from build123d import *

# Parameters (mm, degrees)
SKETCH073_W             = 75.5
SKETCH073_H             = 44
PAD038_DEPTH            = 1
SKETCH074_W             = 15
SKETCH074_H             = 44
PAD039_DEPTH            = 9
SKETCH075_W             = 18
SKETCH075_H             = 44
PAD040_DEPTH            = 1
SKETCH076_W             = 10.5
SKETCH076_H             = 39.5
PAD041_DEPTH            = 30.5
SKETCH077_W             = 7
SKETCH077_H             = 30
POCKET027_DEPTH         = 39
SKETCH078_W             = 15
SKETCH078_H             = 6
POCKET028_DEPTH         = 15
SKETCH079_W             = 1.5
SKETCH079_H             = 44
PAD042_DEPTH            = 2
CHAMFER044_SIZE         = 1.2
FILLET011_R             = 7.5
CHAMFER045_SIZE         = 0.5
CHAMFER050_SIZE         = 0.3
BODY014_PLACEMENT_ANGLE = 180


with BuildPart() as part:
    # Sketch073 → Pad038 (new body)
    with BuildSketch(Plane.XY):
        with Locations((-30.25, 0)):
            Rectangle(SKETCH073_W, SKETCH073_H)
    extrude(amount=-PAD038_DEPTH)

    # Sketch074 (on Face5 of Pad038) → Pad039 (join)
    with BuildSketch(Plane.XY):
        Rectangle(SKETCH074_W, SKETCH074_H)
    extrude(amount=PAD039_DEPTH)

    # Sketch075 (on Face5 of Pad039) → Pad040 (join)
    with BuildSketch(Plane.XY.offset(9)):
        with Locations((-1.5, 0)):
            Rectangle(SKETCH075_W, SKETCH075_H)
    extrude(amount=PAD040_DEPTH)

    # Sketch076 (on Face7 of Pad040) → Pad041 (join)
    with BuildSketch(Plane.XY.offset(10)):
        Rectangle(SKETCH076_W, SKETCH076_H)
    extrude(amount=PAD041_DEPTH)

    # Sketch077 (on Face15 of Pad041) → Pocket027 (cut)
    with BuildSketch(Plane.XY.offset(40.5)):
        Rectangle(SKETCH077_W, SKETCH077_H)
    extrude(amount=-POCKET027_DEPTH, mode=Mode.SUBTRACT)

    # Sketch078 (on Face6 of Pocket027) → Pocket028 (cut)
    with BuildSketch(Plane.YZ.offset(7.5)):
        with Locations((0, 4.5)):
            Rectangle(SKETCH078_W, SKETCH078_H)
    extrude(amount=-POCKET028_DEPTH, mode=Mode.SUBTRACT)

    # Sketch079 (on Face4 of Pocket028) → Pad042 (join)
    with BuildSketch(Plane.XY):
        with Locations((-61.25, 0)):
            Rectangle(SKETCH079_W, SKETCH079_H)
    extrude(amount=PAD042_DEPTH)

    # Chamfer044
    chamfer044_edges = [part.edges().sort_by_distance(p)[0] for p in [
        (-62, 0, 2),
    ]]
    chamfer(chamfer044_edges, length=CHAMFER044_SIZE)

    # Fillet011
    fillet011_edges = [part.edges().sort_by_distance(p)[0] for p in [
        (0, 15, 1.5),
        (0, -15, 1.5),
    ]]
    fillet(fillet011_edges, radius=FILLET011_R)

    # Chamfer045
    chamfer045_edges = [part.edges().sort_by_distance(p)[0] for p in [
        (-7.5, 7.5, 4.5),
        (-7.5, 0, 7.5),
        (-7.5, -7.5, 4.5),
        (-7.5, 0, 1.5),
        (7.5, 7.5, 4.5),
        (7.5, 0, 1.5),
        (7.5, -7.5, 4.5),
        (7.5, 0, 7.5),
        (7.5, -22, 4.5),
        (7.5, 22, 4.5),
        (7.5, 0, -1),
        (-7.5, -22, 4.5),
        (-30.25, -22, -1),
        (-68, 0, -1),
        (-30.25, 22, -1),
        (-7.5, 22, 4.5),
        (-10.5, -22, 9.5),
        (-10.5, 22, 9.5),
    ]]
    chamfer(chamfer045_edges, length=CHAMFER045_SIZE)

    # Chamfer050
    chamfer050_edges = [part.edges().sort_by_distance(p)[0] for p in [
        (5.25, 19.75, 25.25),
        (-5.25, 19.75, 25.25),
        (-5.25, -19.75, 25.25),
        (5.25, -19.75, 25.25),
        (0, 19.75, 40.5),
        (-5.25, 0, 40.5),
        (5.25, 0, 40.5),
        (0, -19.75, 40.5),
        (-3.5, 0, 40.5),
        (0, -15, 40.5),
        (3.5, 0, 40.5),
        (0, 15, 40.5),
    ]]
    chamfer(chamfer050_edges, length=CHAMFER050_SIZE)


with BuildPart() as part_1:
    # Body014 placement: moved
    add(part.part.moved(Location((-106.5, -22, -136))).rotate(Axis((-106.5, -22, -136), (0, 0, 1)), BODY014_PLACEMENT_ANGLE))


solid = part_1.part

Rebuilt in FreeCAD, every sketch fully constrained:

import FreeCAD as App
import Part
import Sketcher
from FreeCAD import Vector
Q = App.Units.Quantity


def edges_at(feature, points):
    """Names of the edges that pass closest to the given points."""
    edges = feature.Shape.Edges
    near = lambda p: min(range(len(edges)), key=lambda i: edges[i].distToShape(Part.Vertex(*p))[0])
    return sorted({f"Edge{near(p) + 1}" for p in points})

doc = App.newDocument("Part")
body = doc.addObject("PartDesign::Body", "Body")

sketch1 = doc.addObject("Sketcher::SketchObject", "Sketch")
body.addObject(sketch1)
sketch1.AttachmentSupport = (doc.XY_Plane, [""])
sketch1.MapMode = "FlatFace"
sketch1.addGeometry(Part.LineSegment(Vector(-68, 22, 0), Vector(-68, -22, 0)), False)
sketch1.addGeometry(Part.LineSegment(Vector(-68, -22, 0), Vector(7.5, -22, 0)), False)
sketch1.addGeometry(Part.LineSegment(Vector(7.5, -22, 0), Vector(7.5, 22, 0)), False)
sketch1.addGeometry(Part.LineSegment(Vector(7.5, 22, 0), Vector(-68, 22, 0)), False)
sketch1.addConstraint(Sketcher.Constraint("Coincident", 0, 2, 1, 1))
sketch1.addConstraint(Sketcher.Constraint("Coincident", 1, 2, 2, 1))
sketch1.addConstraint(Sketcher.Constraint("Coincident", 2, 2, 3, 1))
sketch1.addConstraint(Sketcher.Constraint("Coincident", 3, 2, 0, 1))
sketch1.addConstraint(Sketcher.Constraint("Vertical", 0))
sketch1.addConstraint(Sketcher.Constraint("Horizontal", 1))
sketch1.addConstraint(Sketcher.Constraint("Vertical", 2))
sketch1.addConstraint(Sketcher.Constraint("Horizontal", 3))
sketch1.addConstraint(Sketcher.Constraint("DistanceY", 0, 2, 0, 1, Q("44 mm")))
sketch1.addConstraint(Sketcher.Constraint("DistanceX", 1, 1, 1, 2, Q("75.5 mm")))
sketch1.addConstraint(Sketcher.Constraint("DistanceX", 0, 2, -1, 1, Q("68 mm")))
sketch1.addConstraint(Sketcher.Constraint("DistanceY", 0, 2, -1, 1, Q("22 mm")))
pad1 = doc.addObject("PartDesign::Pad", "Pad")
body.addObject(pad1)
pad1.Profile = sketch1
pad1.Length = 1
pad1.Reversed = True

sketch2 = doc.addObject("Sketcher::SketchObject", "Sketch001")
body.addObject(sketch2)
sketch2.AttachmentSupport = (doc.XY_Plane, [""])
sketch2.MapMode = "FlatFace"
sketch2.addGeometry(Part.LineSegment(Vector(-7.5, 22, 0), Vector(-7.5, -22, 0)), False)
sketch2.addGeometry(Part.LineSegment(Vector(-7.5, -22, 0), Vector(7.5, -22, 0)), False)
sketch2.addGeometry(Part.LineSegment(Vector(7.5, -22, 0), Vector(7.5, 22, 0)), False)
sketch2.addGeometry(Part.LineSegment(Vector(7.5, 22, 0), Vector(-7.5, 22, 0)), False)
sketch2.addConstraint(Sketcher.Constraint("Coincident", 0, 2, 1, 1))
sketch2.addConstraint(Sketcher.Constraint("Coincident", 1, 2, 2, 1))
sketch2.addConstraint(Sketcher.Constraint("Coincident", 2, 2, 3, 1))
sketch2.addConstraint(Sketcher.Constraint("Coincident", 3, 2, 0, 1))
sketch2.addConstraint(Sketcher.Constraint("Vertical", 0))
sketch2.addConstraint(Sketcher.Constraint("Horizontal", 1))
sketch2.addConstraint(Sketcher.Constraint("Vertical", 2))
sketch2.addConstraint(Sketcher.Constraint("Horizontal", 3))
sketch2.addConstraint(Sketcher.Constraint("Symmetric", 0, 2, 2, 2, -1, 1))
sketch2.addConstraint(Sketcher.Constraint("DistanceX", 1, 1, 1, 2, Q("15 mm")))
sketch2.addConstraint(Sketcher.Constraint("DistanceY", 0, 2, 0, 1, Q("44 mm")))
pad2 = doc.addObject("PartDesign::Pad", "Pad001")
body.addObject(pad2)
pad2.Profile = sketch2
pad2.Length = 9

sketch3 = doc.addObject("Sketcher::SketchObject", "Sketch002")
body.addObject(sketch3)
sketch3.AttachmentSupport = (doc.XY_Plane, [""])
sketch3.MapMode = "FlatFace"
sketch3.AttachmentOffset = App.Placement(Vector(0, 0, 9), App.Rotation())
sketch3.addGeometry(Part.LineSegment(Vector(-10.5, 22, 0), Vector(-10.5, -22, 0)), False)
sketch3.addGeometry(Part.LineSegment(Vector(-10.5, -22, 0), Vector(7.5, -22, 0)), False)
sketch3.addGeometry(Part.LineSegment(Vector(7.5, -22, 0), Vector(7.5, 22, 0)), False)
sketch3.addGeometry(Part.LineSegment(Vector(7.5, 22, 0), Vector(-10.5, 22, 0)), False)
sketch3.addConstraint(Sketcher.Constraint("Coincident", 0, 2, 1, 1))
sketch3.addConstraint(Sketcher.Constraint("Coincident", 1, 2, 2, 1))
sketch3.addConstraint(Sketcher.Constraint("Coincident", 2, 2, 3, 1))
sketch3.addConstraint(Sketcher.Constraint("Coincident", 3, 2, 0, 1))
sketch3.addConstraint(Sketcher.Constraint("Vertical", 0))
sketch3.addConstraint(Sketcher.Constraint("Horizontal", 1))
sketch3.addConstraint(Sketcher.Constraint("Vertical", 2))
sketch3.addConstraint(Sketcher.Constraint("Horizontal", 3))
sketch3.addConstraint(Sketcher.Constraint("DistanceX", 1, 1, 1, 2, Q("18 mm")))
sketch3.addConstraint(Sketcher.Constraint("DistanceY", 0, 2, 0, 1, Q("44 mm")))
sketch3.addConstraint(Sketcher.Constraint("DistanceY", 0, 2, -1, 1, Q("22 mm")))
sketch3.addConstraint(Sketcher.Constraint("DistanceX", 0, 2, -1, 1, Q("10.5 mm")))
pad3 = doc.addObject("PartDesign::Pad", "Pad002")
body.addObject(pad3)
pad3.Profile = sketch3
pad3.Length = 1

sketch4 = doc.addObject("Sketcher::SketchObject", "Sketch003")
body.addObject(sketch4)
sketch4.AttachmentSupport = (doc.XY_Plane, [""])
sketch4.MapMode = "FlatFace"
sketch4.AttachmentOffset = App.Placement(Vector(0, 0, 10), App.Rotation())
sketch4.addGeometry(Part.LineSegment(Vector(-5.25, 19.75, 0), Vector(-5.25, -19.75, 0)), False)
sketch4.addGeometry(Part.LineSegment(Vector(-5.25, -19.75, 0), Vector(5.25, -19.75, 0)), False)
sketch4.addGeometry(Part.LineSegment(Vector(5.25, -19.75, 0), Vector(5.25, 19.75, 0)), False)
sketch4.addGeometry(Part.LineSegment(Vector(5.25, 19.75, 0), Vector(-5.25, 19.75, 0)), False)
sketch4.addConstraint(Sketcher.Constraint("Coincident", 0, 2, 1, 1))
sketch4.addConstraint(Sketcher.Constraint("Coincident", 1, 2, 2, 1))
sketch4.addConstraint(Sketcher.Constraint("Coincident", 2, 2, 3, 1))
sketch4.addConstraint(Sketcher.Constraint("Coincident", 3, 2, 0, 1))
sketch4.addConstraint(Sketcher.Constraint("Vertical", 0))
sketch4.addConstraint(Sketcher.Constraint("Horizontal", 1))
sketch4.addConstraint(Sketcher.Constraint("Vertical", 2))
sketch4.addConstraint(Sketcher.Constraint("Horizontal", 3))
sketch4.addConstraint(Sketcher.Constraint("Symmetric", 0, 2, 2, 2, -1, 1))
sketch4.addConstraint(Sketcher.Constraint("DistanceX", 1, 1, 1, 2, Q("10.5 mm")))
sketch4.addConstraint(Sketcher.Constraint("DistanceY", 0, 2, 0, 1, Q("39.5 mm")))
pad4 = doc.addObject("PartDesign::Pad", "Pad003")
body.addObject(pad4)
pad4.Profile = sketch4
pad4.Length = 30.5

sketch5 = doc.addObject("Sketcher::SketchObject", "Sketch004")
body.addObject(sketch5)
sketch5.AttachmentSupport = (doc.XY_Plane, [""])
sketch5.MapMode = "FlatFace"
sketch5.AttachmentOffset = App.Placement(Vector(0, 0, 40.5), App.Rotation())
sketch5.addGeometry(Part.LineSegment(Vector(-3.5, 15, 0), Vector(-3.5, -15, 0)), False)
sketch5.addGeometry(Part.LineSegment(Vector(-3.5, -15, 0), Vector(3.5, -15, 0)), False)
sketch5.addGeometry(Part.LineSegment(Vector(3.5, -15, 0), Vector(3.5, 15, 0)), False)
sketch5.addGeometry(Part.LineSegment(Vector(3.5, 15, 0), Vector(-3.5, 15, 0)), False)
sketch5.addConstraint(Sketcher.Constraint("Coincident", 0, 2, 1, 1))
sketch5.addConstraint(Sketcher.Constraint("Coincident", 1, 2, 2, 1))
sketch5.addConstraint(Sketcher.Constraint("Coincident", 2, 2, 3, 1))
sketch5.addConstraint(Sketcher.Constraint("Coincident", 3, 2, 0, 1))
sketch5.addConstraint(Sketcher.Constraint("Vertical", 0))
sketch5.addConstraint(Sketcher.Constraint("Horizontal", 1))
sketch5.addConstraint(Sketcher.Constraint("Vertical", 2))
sketch5.addConstraint(Sketcher.Constraint("Horizontal", 3))
sketch5.addConstraint(Sketcher.Constraint("Symmetric", 0, 2, 2, 2, -1, 1))
sketch5.addConstraint(Sketcher.Constraint("DistanceX", 1, 1, 1, 2, Q("7 mm")))
sketch5.addConstraint(Sketcher.Constraint("DistanceY", 0, 2, 0, 1, Q("30 mm")))
pocket1 = doc.addObject("PartDesign::Pocket", "Pocket")
body.addObject(pocket1)
pocket1.Profile = sketch5
pocket1.Length = 39

sketch6 = doc.addObject("Sketcher::SketchObject", "Sketch005")
body.addObject(sketch6)
sketch6.AttachmentSupport = (doc.YZ_Plane, [""])
sketch6.MapMode = "FlatFace"
sketch6.AttachmentOffset = App.Placement(Vector(0, 0, 7.5), App.Rotation())
sketch6.addGeometry(Part.LineSegment(Vector(-7.5, 7.5, 0), Vector(-7.5, 1.5, 0)), False)
sketch6.addGeometry(Part.LineSegment(Vector(-7.5, 1.5, 0), Vector(7.5, 1.5, 0)), False)
sketch6.addGeometry(Part.LineSegment(Vector(7.5, 1.5, 0), Vector(7.5, 7.5, 0)), False)
sketch6.addGeometry(Part.LineSegment(Vector(7.5, 7.5, 0), Vector(-7.5, 7.5, 0)), False)
sketch6.addConstraint(Sketcher.Constraint("Coincident", 0, 2, 1, 1))
sketch6.addConstraint(Sketcher.Constraint("Coincident", 1, 2, 2, 1))
sketch6.addConstraint(Sketcher.Constraint("Coincident", 2, 2, 3, 1))
sketch6.addConstraint(Sketcher.Constraint("Coincident", 3, 2, 0, 1))
sketch6.addConstraint(Sketcher.Constraint("Vertical", 0))
sketch6.addConstraint(Sketcher.Constraint("Horizontal", 1))
sketch6.addConstraint(Sketcher.Constraint("Vertical", 2))
sketch6.addConstraint(Sketcher.Constraint("Horizontal", 3))
sketch6.addConstraint(Sketcher.Constraint("DistanceX", 1, 1, 1, 2, Q("15 mm")))
sketch6.addConstraint(Sketcher.Constraint("DistanceY", 0, 2, 0, 1, Q("6 mm")))
sketch6.addConstraint(Sketcher.Constraint("DistanceX", 0, 2, -1, 1, Q("7.5 mm")))
sketch6.addConstraint(Sketcher.Constraint("DistanceY", -1, 1, 0, 2, Q("1.5 mm")))
pocket2 = doc.addObject("PartDesign::Pocket", "Pocket001")
body.addObject(pocket2)
pocket2.Profile = sketch6
pocket2.Length = 15

sketch7 = doc.addObject("Sketcher::SketchObject", "Sketch006")
body.addObject(sketch7)
sketch7.AttachmentSupport = (doc.XY_Plane, [""])
sketch7.MapMode = "FlatFace"
sketch7.addGeometry(Part.LineSegment(Vector(-62, 22, 0), Vector(-62, -22, 0)), False)
sketch7.addGeometry(Part.LineSegment(Vector(-62, -22, 0), Vector(-60.5, -22, 0)), False)
sketch7.addGeometry(Part.LineSegment(Vector(-60.5, -22, 0), Vector(-60.5, 22, 0)), False)
sketch7.addGeometry(Part.LineSegment(Vector(-60.5, 22, 0), Vector(-62, 22, 0)), False)
sketch7.addConstraint(Sketcher.Constraint("Coincident", 0, 2, 1, 1))
sketch7.addConstraint(Sketcher.Constraint("Coincident", 1, 2, 2, 1))
sketch7.addConstraint(Sketcher.Constraint("Coincident", 2, 2, 3, 1))
sketch7.addConstraint(Sketcher.Constraint("Coincident", 3, 2, 0, 1))
sketch7.addConstraint(Sketcher.Constraint("Vertical", 0))
sketch7.addConstraint(Sketcher.Constraint("Horizontal", 1))
sketch7.addConstraint(Sketcher.Constraint("Vertical", 2))
sketch7.addConstraint(Sketcher.Constraint("Horizontal", 3))
sketch7.addConstraint(Sketcher.Constraint("DistanceY", 0, 2, 0, 1, Q("44 mm")))
sketch7.addConstraint(Sketcher.Constraint("DistanceX", 1, 1, 1, 2, Q("1.5 mm")))
sketch7.addConstraint(Sketcher.Constraint("DistanceX", 0, 2, -1, 1, Q("62 mm")))
sketch7.addConstraint(Sketcher.Constraint("DistanceY", 0, 2, -1, 1, Q("22 mm")))
pad5 = doc.addObject("PartDesign::Pad", "Pad004")
body.addObject(pad5)
pad5.Profile = sketch7
pad5.Length = 2
doc.recompute()

chamfer = doc.addObject("PartDesign::Chamfer", "Chamfer")
body.addObject(chamfer)
chamfer.Base = (pad5, edges_at(pad5, [(-62, 0, 2)]))
chamfer.Size = 1.2
doc.recompute()

fillet = doc.addObject("PartDesign::Fillet", "Fillet")
body.addObject(fillet)
fillet.Base = (chamfer, edges_at(chamfer, [(0, 15, 1.5), (0, -15, 1.5)]))
fillet.Radius = 7.5
doc.recompute()

chamfer2 = doc.addObject("PartDesign::Chamfer", "Chamfer001")
body.addObject(chamfer2)
chamfer2.Base = (fillet, edges_at(fillet, [
    (-7.5, 7.5, 4.5),
    (-7.5, 0, 7.5),
    (-7.5, -7.5, 4.5),
    (-7.5, 0, 1.5),
    (7.5, 7.5, 4.5),
    (7.5, 0, 1.5),
    (7.5, -7.5, 4.5),
    (7.5, 0, 7.5),
    (7.5, -22, 4.5),
    (7.5, 22, 4.5),
    (7.5, 0, -1),
    (-7.5, -22, 4.5),
    (-30.25, -22, -1),
    (-68, 0, -1),
    (-30.25, 22, -1),
    (-7.5, 22, 4.5),
    (-10.5, -22, 9.5),
    (-10.5, 22, 9.5),
]))
chamfer2.Size = 0.5
doc.recompute()

chamfer3 = doc.addObject("PartDesign::Chamfer", "Chamfer002")
body.addObject(chamfer3)
chamfer3.Base = (chamfer2, edges_at(chamfer2, [
    (5.25, 19.75, 25.25),
    (-5.25, 19.75, 25.25),
    (-5.25, -19.75, 25.25),
    (5.25, -19.75, 25.25),
    (0, 19.75, 40.5),
    (-5.25, 0, 40.5),
    (5.25, 0, 40.5),
    (0, -19.75, 40.5),
    (-3.5, 0, 40.5),
    (0, -15, 40.5),
    (3.5, 0, 40.5),
    (0, 15, 40.5),
]))
chamfer3.Size = 0.3
body2 = doc.addObject("PartDesign::Body", "Body001")
doc.recompute()

body.Placement = App.Placement(Vector(-106.5, -22, -136), App.Rotation(Vector(0, 0, 1), 180))
boolean = doc.addObject("PartDesign::Boolean", "Boolean")
body2.addObject(boolean)
boolean.Type = "Fuse"
boolean.addObjects([body])

doc.recompute()
